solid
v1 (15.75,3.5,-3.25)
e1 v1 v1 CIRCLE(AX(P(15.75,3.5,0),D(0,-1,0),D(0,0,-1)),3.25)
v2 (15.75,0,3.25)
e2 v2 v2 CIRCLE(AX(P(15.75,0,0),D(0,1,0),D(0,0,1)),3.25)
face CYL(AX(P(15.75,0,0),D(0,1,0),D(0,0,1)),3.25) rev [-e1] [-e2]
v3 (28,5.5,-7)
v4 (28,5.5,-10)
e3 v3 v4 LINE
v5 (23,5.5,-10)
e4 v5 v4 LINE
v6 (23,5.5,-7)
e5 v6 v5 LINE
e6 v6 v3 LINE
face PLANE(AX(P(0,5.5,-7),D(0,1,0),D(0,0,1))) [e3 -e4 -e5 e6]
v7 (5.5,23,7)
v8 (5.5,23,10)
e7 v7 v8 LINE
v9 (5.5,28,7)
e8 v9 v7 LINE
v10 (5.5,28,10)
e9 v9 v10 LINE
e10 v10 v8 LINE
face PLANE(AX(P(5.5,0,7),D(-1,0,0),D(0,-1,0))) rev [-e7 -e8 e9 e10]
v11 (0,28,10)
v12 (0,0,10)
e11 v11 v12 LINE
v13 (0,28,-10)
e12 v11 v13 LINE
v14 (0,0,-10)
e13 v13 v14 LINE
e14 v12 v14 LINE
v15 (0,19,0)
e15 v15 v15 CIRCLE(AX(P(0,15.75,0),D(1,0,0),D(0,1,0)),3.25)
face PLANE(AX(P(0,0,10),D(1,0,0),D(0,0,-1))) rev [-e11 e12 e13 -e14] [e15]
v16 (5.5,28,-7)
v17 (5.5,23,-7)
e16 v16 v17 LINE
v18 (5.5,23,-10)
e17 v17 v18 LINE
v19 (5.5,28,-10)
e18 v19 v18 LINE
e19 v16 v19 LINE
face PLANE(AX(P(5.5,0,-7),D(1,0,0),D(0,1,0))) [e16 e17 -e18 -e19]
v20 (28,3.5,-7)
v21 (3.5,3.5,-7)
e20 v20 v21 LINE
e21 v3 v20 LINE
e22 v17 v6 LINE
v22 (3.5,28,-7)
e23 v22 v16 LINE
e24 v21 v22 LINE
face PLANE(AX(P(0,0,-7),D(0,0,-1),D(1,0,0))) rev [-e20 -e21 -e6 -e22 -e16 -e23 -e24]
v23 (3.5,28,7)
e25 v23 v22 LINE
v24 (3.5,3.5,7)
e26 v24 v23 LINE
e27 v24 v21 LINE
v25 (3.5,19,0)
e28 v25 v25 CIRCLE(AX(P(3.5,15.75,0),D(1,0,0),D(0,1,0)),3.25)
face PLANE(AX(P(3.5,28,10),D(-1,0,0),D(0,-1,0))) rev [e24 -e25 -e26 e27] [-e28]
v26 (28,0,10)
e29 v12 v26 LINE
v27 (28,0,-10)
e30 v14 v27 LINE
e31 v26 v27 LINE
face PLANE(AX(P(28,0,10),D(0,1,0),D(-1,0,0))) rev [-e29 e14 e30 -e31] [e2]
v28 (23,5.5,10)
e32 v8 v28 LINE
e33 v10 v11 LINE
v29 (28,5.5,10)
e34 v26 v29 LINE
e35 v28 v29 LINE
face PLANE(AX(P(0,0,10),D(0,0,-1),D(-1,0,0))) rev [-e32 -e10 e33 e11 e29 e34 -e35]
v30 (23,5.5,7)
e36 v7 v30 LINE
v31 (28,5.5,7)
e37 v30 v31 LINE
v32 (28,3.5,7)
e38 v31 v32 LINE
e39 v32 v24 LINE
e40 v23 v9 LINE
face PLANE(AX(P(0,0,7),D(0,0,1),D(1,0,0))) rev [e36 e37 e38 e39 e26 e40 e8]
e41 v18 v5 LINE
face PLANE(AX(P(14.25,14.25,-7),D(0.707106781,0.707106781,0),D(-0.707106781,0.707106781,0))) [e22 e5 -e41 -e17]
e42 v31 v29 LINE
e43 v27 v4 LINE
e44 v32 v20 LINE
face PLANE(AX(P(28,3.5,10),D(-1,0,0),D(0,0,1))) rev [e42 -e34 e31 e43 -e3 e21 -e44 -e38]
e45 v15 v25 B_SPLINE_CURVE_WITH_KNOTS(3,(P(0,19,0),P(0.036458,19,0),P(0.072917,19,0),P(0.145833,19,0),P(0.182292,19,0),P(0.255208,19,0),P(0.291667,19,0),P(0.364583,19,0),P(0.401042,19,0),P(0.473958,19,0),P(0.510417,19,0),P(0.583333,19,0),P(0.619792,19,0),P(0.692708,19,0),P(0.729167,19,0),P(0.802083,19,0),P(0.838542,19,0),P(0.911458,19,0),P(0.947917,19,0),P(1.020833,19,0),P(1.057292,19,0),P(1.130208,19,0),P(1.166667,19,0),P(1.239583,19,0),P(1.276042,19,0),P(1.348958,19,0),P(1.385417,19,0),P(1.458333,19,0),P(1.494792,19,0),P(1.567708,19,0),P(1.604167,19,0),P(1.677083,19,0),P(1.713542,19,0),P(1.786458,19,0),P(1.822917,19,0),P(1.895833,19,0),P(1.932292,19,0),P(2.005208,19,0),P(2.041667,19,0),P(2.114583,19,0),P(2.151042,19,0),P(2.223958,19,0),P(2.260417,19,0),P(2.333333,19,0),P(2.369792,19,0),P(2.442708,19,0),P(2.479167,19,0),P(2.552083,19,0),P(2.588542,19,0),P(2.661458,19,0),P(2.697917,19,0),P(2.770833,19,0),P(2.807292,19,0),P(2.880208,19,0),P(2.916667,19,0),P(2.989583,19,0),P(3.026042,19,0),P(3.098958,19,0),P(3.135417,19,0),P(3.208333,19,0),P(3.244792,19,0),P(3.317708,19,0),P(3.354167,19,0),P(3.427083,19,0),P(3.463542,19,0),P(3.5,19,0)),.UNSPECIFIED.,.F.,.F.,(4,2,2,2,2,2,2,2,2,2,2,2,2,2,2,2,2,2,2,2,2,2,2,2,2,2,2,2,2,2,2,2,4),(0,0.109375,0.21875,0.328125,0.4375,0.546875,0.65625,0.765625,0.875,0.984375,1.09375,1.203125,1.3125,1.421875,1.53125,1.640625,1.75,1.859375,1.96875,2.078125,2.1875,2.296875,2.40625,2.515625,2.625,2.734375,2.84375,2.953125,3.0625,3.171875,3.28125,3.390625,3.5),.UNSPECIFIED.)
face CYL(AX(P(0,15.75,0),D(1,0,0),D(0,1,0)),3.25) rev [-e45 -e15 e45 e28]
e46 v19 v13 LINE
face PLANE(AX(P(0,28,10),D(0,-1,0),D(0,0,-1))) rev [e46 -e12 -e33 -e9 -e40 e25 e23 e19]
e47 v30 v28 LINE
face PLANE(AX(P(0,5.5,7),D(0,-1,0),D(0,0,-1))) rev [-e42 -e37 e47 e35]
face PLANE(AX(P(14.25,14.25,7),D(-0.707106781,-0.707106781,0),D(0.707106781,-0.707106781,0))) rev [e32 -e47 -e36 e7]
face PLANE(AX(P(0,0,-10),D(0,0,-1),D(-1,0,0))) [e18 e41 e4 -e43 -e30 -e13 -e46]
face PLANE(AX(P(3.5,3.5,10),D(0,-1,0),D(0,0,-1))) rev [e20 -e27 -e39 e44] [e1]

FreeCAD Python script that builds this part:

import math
import FreeCAD as App
import Part
import Sketcher
from FreeCAD import Vector


def add_polygon(sketch, points):
    """Adds a closed chain of lines whose ends are joined by coincident constraints."""
    first, n = sketch.GeometryCount, len(points)
    for a, b in zip(points, points[1:] + points[:1]):
        sketch.addGeometry(Part.LineSegment(App.Vector(*a, 0), App.Vector(*b, 0)), False)
    for i in range(n):
        sketch.addConstraint(Sketcher.Constraint("Coincident", first + i, 2, first + (i + 1) % n, 1))

doc = App.newDocument("Part")
body = doc.addObject("PartDesign::Body", "Body")

# Sketch on XY plane
sketch1 = doc.addObject("Sketcher::SketchObject", "Sketch")
body.addObject(sketch1)
sketch1.AttachmentSupport = (doc.XY_Plane, [""])
sketch1.MapMode = "FlatFace"
add_polygon(sketch1, [(0, 28), (0, 0), (28, 0), (28, 3.5), (3.5, 3.5), (3.5, 28)])  # lines 0-5
sketch1.addConstraint([
    Sketcher.Constraint("Vertical", 0),
    Sketcher.Constraint("Horizontal", 1),
    Sketcher.Constraint("Vertical", 2),
    Sketcher.Constraint("Horizontal", 3),
    Sketcher.Constraint("Vertical", 4),
    Sketcher.Constraint("Horizontal", 5),
    Sketcher.Constraint("Coincident", 0, 2, -1, 1),
    Sketcher.Constraint("Equal", 1, 0),
    Sketcher.Constraint("Equal", 5, 2),
    Sketcher.Constraint("DistanceX", 1, 1, 1, 2, 28.0),
    Sketcher.Constraint("DistanceX", 3, 2, 3, 1, 24.5),
])
pad1 = doc.addObject("PartDesign::Pad", "Pad")
body.addObject(pad1)
pad1.Profile = sketch1
pad1.Length = 20
pad1.Midplane = True

# Sketch on XY plane
sketch2 = doc.addObject("Sketcher::SketchObject", "Sketch001")
body.addObject(sketch2)
sketch2.AttachmentSupport = (doc.XY_Plane, [""])
sketch2.MapMode = "FlatFace"
sketch2.AttachmentOffset = App.Placement(Vector(0, 0, 10), App.Rotation())
add_polygon(sketch2, [(28, 3.5), (28, 5.5), (23, 5.5), (5.5, 23), (5.5, 28), (3.5, 28), (3.5, 3.5)])  # lines 0-6
sketch2.addConstraint([
    Sketcher.Constraint("Vertical", 0),
    Sketcher.Constraint("Horizontal", 1),
    Sketcher.Constraint("Vertical", 3),
    Sketcher.Constraint("Horizontal", 4),
    Sketcher.Constraint("Vertical", 5),
    Sketcher.Constraint("Horizontal", 6),
    Sketcher.Constraint("Equal", 4, 0),
    Sketcher.Constraint("Equal", 1, 3),
    Sketcher.Constraint("Equal", 6, 5),
    Sketcher.Constraint("DistanceX", 1, 2, 1, 1, 5.0),
    Sketcher.Constraint("DistanceX", 4, 2, 4, 1, 2.0),
    Sketcher.Constraint("DistanceX", 6, 1, 6, 2, 24.5),
    Sketcher.Constraint("DistanceX", -1, 1, 0, 2, 28.0),
    Sketcher.Constraint("DistanceY", -1, 1, 2, 2, 23.0),
])
pad2 = doc.addObject("PartDesign::Pad", "Pad001")
body.addObject(pad2)
pad2.Profile = sketch2
pad2.Length = 3
pad2.Reversed = True
doc.recompute()

mirrored = doc.addObject("PartDesign::Mirrored", "Mirrored")
body.addObject(mirrored)
mirrored.Originals = [pad2]
mirrored.MirrorPlane = (doc.XY_Plane, [""])
body.Tip = mirrored

# Sketch on XZ plane
sketch3 = doc.addObject("Sketcher::SketchObject", "Sketch002")
body.addObject(sketch3)
sketch3.AttachmentSupport = (doc.XZ_Plane, [""])
sketch3.MapMode = "FlatFace"
sketch3.AttachmentOffset = App.Placement(Vector(0, 0, -3.5), App.Rotation())
sketch3.addGeometry([
    Part.ArcOfCircle(Part.Circle(Vector(15.75, 0, 0), Vector(0, 0, 1), 3.25), math.radians(-150.255119), math.radians(0)),
    Part.ArcOfCircle(Part.Circle(Vector(15.75, 0, 0), Vector(0, 0, 1), 3.25), math.radians(29.744881), math.radians(209.744881)),
    Part.ArcOfCircle(Part.Circle(Vector(15.75, 0, 0), Vector(0, 0, 1), 3.25), math.radians(0), math.radians(29.744881)),
], False)
sketch3.addConstraint([
    Sketcher.Constraint("Tangent", 0, 1, 1, 2),
    Sketcher.Constraint("Tangent", 1, 1, 2, 2),
    Sketcher.Constraint("Tangent", 2, 1, 0, 2),
    Sketcher.Constraint("PointOnObject", 0, 3, -1),
    Sketcher.Constraint("PointOnObject", 2, 1, -1),
    Sketcher.Constraint("Radius", 0, 3.25),
    Sketcher.Constraint("DistanceX", -1, 1, 2, 1, 19.0),
    Sketcher.Constraint("DistanceX", -1, 1, 0, 1, 12.92821),
    Sketcher.Constraint("DistanceX", -1, 1, 1, 1, 18.57179),
])
pocket1 = doc.addObject("PartDesign::Pocket", "Pocket")
body.addObject(pocket1)
pocket1.Profile = sketch3
pocket1.Type = "ThroughAll"
pocket1.Midplane = True

# Sketch on YZ plane
sketch4 = doc.addObject("Sketcher::SketchObject", "Sketch003")
body.addObject(sketch4)
sketch4.AttachmentSupport = (doc.YZ_Plane, [""])
sketch4.MapMode = "FlatFace"
sketch4.AttachmentOffset = App.Placement(Vector(0, 0, 3.5), App.Rotation())
sketch4.addGeometry([
    Part.ArcOfCircle(Part.Circle(Vector(15.75, 0, 0), Vector(0, 0, 1), 3.25), math.radians(-90), math.radians(-29.744881)),
    Part.ArcOfCircle(Part.Circle(Vector(15.75, 0, 0), Vector(0, 0, 1), 3.25), math.radians(-29.744881), math.radians(150.255119)),
    Part.ArcOfCircle(Part.Circle(Vector(15.75, 0, 0), Vector(0, 0, 1), 3.25), math.radians(150.255119), math.radians(270)),
], False)
sketch4.addConstraint([
    Sketcher.Constraint("Tangent", 0, 2, 1, 1),
    Sketcher.Constraint("Tangent", 1, 2, 2, 1),
    Sketcher.Constraint("Tangent", 2, 2, 0, 1),
    Sketcher.Constraint("PointOnObject", 0, 3, -1),
    Sketcher.Constraint("Vertical", 1, 3, 2, 2),
    Sketcher.Constraint("Radius", 0, 3.25),
    Sketcher.Constraint("DistanceX", -1, 1, 0, 3, 15.75),
    Sketcher.Constraint("DistanceX", -1, 1, 0, 2, 18.57179),
    Sketcher.Constraint("DistanceX", -1, 1, 1, 2, 12.92821),
])
pocket2 = doc.addObject("PartDesign::Pocket", "Pocket001")
body.addObject(pocket2)
pocket2.Profile = sketch4
pocket2.Type = "ThroughAll"

doc.recompute()
